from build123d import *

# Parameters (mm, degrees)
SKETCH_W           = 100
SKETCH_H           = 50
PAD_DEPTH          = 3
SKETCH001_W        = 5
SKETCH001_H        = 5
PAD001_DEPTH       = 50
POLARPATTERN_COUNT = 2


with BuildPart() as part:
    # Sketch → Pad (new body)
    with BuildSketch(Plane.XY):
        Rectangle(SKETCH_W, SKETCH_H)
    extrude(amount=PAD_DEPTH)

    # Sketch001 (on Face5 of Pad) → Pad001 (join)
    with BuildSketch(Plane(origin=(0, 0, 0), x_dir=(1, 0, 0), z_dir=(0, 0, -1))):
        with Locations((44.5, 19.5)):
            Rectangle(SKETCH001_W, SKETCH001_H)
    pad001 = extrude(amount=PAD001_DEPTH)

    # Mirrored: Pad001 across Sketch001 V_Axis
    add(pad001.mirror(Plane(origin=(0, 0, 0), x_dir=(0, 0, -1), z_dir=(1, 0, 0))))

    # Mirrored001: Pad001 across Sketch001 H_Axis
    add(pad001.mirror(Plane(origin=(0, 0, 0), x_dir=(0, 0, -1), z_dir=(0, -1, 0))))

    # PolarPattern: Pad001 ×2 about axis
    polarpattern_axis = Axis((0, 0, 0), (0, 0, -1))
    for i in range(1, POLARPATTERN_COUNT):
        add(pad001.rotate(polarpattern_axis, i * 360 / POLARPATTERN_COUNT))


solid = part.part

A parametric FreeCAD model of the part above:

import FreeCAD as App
import Part
import Sketcher
from FreeCAD import Vector
Q = App.Units.Quantity

doc = App.newDocument("Part")
body = doc.addObject("PartDesign::Body", "Body")

# Sketch on XY plane
sketch1 = body.newObject("Sketcher::SketchObject", "Sketch")
sketch1.AttachmentSupport = (doc.getObject("XY_Plane"), [""])
sketch1.MapMode = "FlatFace"
sketch1.addGeometry([
    Part.LineSegment(Vector(-50, 25, 0), Vector(-50, -25, 0)),
    Part.LineSegment(Vector(-50, -25, 0), Vector(50, -25, 0)),
    Part.LineSegment(Vector(50, -25, 0), Vector(50, 25, 0)),
    Part.LineSegment(Vector(50, 25, 0), Vector(-50, 25, 0)),
], False)
sketch1.addConstraint([
    Sketcher.Constraint("Coincident", 0, 2, 1, 1),
    Sketcher.Constraint("Coincident", 1, 2, 2, 1),
    Sketcher.Constraint("Coincident", 2, 2, 3, 1),
    Sketcher.Constraint("Coincident", 3, 2, 0, 1),
    Sketcher.Constraint("Vertical", 0),
    Sketcher.Constraint("Horizontal", 1),
    Sketcher.Constraint("Vertical", 2),
    Sketcher.Constraint("Horizontal", 3),
    Sketcher.Constraint("Symmetric", 0, 2, 2, 2, -1, 1),
    Sketcher.Constraint("DistanceX", 1, 1, 1, 2, Q("100 mm")),
    Sketcher.Constraint("DistanceY", 0, 2, 0, 1, Q("50 mm")),
])
pad1 = body.newObject("PartDesign::Pad", "Pad")
pad1.Profile = sketch1
pad1.Length = 3

# Sketch on XY plane
sketch2 = body.newObject("Sketcher::SketchObject", "Sketch001")
sketch2.AttachmentSupport = (doc.getObject("XY_Plane"), [""])
sketch2.MapMode = "FlatFace"
sketch2.addGeometry([
    Part.LineSegment(Vector(42, -22, 0), Vector(42, -17, 0)),
    Part.LineSegment(Vector(42, -17, 0), Vector(47, -17, 0)),
    Part.LineSegment(Vector(47, -17, 0), Vector(47, -22, 0)),
    Part.LineSegment(Vector(47, -22, 0), Vector(42, -22, 0)),
], False)
sketch2.addConstraint([
    Sketcher.Constraint("Coincident", 0, 2, 1, 1),
    Sketcher.Constraint("Coincident", 1, 2, 2, 1),
    Sketcher.Constraint("Coincident", 2, 2, 3, 1),
    Sketcher.Constraint("Coincident", 3, 2, 0, 1),
    Sketcher.Constraint("Vertical", 0),
    Sketcher.Constraint("Horizontal", 1),
    Sketcher.Constraint("Vertical", 2),
    Sketcher.Constraint("Horizontal", 3),
    Sketcher.Constraint("Equal", 3, 0),
    Sketcher.Constraint("DistanceX", 1, 1, 1, 2, Q("5 mm")),
    Sketcher.Constraint("DistanceX", -1, 1, 0, 2, Q("42 mm")),
    Sketcher.Constraint("DistanceY", 0, 2, -1, 1, Q("17 mm")),
])
pad2 = body.newObject("PartDesign::Pad", "Pad001")
pad2.Profile = sketch2
pad2.Length = 50
pad2.Reversed = True
doc.recompute()

mirrored = body.newObject("PartDesign::Mirrored", "Mirrored")
mirrored.Originals = [pad2]
mirrored.MirrorPlane = (doc.getObject("YZ_Plane"), [""])
body.Tip = mirrored
doc.recompute()

mirrored2 = body.newObject("PartDesign::Mirrored", "Mirrored001")
mirrored2.Originals = [pad2]
mirrored2.MirrorPlane = (doc.getObject("XZ_Plane"), [""])
body.Tip = mirrored2
doc.recompute()

polarpattern = body.newObject("PartDesign::PolarPattern", "PolarPattern")
polarpattern.Originals = [pad2]
polarpattern.Axis = (doc.getObject("Z_Axis"), [""])
polarpattern.Angle = 360
polarpattern.Occurrences = 2
body.Tip = polarpattern

doc.recompute()
